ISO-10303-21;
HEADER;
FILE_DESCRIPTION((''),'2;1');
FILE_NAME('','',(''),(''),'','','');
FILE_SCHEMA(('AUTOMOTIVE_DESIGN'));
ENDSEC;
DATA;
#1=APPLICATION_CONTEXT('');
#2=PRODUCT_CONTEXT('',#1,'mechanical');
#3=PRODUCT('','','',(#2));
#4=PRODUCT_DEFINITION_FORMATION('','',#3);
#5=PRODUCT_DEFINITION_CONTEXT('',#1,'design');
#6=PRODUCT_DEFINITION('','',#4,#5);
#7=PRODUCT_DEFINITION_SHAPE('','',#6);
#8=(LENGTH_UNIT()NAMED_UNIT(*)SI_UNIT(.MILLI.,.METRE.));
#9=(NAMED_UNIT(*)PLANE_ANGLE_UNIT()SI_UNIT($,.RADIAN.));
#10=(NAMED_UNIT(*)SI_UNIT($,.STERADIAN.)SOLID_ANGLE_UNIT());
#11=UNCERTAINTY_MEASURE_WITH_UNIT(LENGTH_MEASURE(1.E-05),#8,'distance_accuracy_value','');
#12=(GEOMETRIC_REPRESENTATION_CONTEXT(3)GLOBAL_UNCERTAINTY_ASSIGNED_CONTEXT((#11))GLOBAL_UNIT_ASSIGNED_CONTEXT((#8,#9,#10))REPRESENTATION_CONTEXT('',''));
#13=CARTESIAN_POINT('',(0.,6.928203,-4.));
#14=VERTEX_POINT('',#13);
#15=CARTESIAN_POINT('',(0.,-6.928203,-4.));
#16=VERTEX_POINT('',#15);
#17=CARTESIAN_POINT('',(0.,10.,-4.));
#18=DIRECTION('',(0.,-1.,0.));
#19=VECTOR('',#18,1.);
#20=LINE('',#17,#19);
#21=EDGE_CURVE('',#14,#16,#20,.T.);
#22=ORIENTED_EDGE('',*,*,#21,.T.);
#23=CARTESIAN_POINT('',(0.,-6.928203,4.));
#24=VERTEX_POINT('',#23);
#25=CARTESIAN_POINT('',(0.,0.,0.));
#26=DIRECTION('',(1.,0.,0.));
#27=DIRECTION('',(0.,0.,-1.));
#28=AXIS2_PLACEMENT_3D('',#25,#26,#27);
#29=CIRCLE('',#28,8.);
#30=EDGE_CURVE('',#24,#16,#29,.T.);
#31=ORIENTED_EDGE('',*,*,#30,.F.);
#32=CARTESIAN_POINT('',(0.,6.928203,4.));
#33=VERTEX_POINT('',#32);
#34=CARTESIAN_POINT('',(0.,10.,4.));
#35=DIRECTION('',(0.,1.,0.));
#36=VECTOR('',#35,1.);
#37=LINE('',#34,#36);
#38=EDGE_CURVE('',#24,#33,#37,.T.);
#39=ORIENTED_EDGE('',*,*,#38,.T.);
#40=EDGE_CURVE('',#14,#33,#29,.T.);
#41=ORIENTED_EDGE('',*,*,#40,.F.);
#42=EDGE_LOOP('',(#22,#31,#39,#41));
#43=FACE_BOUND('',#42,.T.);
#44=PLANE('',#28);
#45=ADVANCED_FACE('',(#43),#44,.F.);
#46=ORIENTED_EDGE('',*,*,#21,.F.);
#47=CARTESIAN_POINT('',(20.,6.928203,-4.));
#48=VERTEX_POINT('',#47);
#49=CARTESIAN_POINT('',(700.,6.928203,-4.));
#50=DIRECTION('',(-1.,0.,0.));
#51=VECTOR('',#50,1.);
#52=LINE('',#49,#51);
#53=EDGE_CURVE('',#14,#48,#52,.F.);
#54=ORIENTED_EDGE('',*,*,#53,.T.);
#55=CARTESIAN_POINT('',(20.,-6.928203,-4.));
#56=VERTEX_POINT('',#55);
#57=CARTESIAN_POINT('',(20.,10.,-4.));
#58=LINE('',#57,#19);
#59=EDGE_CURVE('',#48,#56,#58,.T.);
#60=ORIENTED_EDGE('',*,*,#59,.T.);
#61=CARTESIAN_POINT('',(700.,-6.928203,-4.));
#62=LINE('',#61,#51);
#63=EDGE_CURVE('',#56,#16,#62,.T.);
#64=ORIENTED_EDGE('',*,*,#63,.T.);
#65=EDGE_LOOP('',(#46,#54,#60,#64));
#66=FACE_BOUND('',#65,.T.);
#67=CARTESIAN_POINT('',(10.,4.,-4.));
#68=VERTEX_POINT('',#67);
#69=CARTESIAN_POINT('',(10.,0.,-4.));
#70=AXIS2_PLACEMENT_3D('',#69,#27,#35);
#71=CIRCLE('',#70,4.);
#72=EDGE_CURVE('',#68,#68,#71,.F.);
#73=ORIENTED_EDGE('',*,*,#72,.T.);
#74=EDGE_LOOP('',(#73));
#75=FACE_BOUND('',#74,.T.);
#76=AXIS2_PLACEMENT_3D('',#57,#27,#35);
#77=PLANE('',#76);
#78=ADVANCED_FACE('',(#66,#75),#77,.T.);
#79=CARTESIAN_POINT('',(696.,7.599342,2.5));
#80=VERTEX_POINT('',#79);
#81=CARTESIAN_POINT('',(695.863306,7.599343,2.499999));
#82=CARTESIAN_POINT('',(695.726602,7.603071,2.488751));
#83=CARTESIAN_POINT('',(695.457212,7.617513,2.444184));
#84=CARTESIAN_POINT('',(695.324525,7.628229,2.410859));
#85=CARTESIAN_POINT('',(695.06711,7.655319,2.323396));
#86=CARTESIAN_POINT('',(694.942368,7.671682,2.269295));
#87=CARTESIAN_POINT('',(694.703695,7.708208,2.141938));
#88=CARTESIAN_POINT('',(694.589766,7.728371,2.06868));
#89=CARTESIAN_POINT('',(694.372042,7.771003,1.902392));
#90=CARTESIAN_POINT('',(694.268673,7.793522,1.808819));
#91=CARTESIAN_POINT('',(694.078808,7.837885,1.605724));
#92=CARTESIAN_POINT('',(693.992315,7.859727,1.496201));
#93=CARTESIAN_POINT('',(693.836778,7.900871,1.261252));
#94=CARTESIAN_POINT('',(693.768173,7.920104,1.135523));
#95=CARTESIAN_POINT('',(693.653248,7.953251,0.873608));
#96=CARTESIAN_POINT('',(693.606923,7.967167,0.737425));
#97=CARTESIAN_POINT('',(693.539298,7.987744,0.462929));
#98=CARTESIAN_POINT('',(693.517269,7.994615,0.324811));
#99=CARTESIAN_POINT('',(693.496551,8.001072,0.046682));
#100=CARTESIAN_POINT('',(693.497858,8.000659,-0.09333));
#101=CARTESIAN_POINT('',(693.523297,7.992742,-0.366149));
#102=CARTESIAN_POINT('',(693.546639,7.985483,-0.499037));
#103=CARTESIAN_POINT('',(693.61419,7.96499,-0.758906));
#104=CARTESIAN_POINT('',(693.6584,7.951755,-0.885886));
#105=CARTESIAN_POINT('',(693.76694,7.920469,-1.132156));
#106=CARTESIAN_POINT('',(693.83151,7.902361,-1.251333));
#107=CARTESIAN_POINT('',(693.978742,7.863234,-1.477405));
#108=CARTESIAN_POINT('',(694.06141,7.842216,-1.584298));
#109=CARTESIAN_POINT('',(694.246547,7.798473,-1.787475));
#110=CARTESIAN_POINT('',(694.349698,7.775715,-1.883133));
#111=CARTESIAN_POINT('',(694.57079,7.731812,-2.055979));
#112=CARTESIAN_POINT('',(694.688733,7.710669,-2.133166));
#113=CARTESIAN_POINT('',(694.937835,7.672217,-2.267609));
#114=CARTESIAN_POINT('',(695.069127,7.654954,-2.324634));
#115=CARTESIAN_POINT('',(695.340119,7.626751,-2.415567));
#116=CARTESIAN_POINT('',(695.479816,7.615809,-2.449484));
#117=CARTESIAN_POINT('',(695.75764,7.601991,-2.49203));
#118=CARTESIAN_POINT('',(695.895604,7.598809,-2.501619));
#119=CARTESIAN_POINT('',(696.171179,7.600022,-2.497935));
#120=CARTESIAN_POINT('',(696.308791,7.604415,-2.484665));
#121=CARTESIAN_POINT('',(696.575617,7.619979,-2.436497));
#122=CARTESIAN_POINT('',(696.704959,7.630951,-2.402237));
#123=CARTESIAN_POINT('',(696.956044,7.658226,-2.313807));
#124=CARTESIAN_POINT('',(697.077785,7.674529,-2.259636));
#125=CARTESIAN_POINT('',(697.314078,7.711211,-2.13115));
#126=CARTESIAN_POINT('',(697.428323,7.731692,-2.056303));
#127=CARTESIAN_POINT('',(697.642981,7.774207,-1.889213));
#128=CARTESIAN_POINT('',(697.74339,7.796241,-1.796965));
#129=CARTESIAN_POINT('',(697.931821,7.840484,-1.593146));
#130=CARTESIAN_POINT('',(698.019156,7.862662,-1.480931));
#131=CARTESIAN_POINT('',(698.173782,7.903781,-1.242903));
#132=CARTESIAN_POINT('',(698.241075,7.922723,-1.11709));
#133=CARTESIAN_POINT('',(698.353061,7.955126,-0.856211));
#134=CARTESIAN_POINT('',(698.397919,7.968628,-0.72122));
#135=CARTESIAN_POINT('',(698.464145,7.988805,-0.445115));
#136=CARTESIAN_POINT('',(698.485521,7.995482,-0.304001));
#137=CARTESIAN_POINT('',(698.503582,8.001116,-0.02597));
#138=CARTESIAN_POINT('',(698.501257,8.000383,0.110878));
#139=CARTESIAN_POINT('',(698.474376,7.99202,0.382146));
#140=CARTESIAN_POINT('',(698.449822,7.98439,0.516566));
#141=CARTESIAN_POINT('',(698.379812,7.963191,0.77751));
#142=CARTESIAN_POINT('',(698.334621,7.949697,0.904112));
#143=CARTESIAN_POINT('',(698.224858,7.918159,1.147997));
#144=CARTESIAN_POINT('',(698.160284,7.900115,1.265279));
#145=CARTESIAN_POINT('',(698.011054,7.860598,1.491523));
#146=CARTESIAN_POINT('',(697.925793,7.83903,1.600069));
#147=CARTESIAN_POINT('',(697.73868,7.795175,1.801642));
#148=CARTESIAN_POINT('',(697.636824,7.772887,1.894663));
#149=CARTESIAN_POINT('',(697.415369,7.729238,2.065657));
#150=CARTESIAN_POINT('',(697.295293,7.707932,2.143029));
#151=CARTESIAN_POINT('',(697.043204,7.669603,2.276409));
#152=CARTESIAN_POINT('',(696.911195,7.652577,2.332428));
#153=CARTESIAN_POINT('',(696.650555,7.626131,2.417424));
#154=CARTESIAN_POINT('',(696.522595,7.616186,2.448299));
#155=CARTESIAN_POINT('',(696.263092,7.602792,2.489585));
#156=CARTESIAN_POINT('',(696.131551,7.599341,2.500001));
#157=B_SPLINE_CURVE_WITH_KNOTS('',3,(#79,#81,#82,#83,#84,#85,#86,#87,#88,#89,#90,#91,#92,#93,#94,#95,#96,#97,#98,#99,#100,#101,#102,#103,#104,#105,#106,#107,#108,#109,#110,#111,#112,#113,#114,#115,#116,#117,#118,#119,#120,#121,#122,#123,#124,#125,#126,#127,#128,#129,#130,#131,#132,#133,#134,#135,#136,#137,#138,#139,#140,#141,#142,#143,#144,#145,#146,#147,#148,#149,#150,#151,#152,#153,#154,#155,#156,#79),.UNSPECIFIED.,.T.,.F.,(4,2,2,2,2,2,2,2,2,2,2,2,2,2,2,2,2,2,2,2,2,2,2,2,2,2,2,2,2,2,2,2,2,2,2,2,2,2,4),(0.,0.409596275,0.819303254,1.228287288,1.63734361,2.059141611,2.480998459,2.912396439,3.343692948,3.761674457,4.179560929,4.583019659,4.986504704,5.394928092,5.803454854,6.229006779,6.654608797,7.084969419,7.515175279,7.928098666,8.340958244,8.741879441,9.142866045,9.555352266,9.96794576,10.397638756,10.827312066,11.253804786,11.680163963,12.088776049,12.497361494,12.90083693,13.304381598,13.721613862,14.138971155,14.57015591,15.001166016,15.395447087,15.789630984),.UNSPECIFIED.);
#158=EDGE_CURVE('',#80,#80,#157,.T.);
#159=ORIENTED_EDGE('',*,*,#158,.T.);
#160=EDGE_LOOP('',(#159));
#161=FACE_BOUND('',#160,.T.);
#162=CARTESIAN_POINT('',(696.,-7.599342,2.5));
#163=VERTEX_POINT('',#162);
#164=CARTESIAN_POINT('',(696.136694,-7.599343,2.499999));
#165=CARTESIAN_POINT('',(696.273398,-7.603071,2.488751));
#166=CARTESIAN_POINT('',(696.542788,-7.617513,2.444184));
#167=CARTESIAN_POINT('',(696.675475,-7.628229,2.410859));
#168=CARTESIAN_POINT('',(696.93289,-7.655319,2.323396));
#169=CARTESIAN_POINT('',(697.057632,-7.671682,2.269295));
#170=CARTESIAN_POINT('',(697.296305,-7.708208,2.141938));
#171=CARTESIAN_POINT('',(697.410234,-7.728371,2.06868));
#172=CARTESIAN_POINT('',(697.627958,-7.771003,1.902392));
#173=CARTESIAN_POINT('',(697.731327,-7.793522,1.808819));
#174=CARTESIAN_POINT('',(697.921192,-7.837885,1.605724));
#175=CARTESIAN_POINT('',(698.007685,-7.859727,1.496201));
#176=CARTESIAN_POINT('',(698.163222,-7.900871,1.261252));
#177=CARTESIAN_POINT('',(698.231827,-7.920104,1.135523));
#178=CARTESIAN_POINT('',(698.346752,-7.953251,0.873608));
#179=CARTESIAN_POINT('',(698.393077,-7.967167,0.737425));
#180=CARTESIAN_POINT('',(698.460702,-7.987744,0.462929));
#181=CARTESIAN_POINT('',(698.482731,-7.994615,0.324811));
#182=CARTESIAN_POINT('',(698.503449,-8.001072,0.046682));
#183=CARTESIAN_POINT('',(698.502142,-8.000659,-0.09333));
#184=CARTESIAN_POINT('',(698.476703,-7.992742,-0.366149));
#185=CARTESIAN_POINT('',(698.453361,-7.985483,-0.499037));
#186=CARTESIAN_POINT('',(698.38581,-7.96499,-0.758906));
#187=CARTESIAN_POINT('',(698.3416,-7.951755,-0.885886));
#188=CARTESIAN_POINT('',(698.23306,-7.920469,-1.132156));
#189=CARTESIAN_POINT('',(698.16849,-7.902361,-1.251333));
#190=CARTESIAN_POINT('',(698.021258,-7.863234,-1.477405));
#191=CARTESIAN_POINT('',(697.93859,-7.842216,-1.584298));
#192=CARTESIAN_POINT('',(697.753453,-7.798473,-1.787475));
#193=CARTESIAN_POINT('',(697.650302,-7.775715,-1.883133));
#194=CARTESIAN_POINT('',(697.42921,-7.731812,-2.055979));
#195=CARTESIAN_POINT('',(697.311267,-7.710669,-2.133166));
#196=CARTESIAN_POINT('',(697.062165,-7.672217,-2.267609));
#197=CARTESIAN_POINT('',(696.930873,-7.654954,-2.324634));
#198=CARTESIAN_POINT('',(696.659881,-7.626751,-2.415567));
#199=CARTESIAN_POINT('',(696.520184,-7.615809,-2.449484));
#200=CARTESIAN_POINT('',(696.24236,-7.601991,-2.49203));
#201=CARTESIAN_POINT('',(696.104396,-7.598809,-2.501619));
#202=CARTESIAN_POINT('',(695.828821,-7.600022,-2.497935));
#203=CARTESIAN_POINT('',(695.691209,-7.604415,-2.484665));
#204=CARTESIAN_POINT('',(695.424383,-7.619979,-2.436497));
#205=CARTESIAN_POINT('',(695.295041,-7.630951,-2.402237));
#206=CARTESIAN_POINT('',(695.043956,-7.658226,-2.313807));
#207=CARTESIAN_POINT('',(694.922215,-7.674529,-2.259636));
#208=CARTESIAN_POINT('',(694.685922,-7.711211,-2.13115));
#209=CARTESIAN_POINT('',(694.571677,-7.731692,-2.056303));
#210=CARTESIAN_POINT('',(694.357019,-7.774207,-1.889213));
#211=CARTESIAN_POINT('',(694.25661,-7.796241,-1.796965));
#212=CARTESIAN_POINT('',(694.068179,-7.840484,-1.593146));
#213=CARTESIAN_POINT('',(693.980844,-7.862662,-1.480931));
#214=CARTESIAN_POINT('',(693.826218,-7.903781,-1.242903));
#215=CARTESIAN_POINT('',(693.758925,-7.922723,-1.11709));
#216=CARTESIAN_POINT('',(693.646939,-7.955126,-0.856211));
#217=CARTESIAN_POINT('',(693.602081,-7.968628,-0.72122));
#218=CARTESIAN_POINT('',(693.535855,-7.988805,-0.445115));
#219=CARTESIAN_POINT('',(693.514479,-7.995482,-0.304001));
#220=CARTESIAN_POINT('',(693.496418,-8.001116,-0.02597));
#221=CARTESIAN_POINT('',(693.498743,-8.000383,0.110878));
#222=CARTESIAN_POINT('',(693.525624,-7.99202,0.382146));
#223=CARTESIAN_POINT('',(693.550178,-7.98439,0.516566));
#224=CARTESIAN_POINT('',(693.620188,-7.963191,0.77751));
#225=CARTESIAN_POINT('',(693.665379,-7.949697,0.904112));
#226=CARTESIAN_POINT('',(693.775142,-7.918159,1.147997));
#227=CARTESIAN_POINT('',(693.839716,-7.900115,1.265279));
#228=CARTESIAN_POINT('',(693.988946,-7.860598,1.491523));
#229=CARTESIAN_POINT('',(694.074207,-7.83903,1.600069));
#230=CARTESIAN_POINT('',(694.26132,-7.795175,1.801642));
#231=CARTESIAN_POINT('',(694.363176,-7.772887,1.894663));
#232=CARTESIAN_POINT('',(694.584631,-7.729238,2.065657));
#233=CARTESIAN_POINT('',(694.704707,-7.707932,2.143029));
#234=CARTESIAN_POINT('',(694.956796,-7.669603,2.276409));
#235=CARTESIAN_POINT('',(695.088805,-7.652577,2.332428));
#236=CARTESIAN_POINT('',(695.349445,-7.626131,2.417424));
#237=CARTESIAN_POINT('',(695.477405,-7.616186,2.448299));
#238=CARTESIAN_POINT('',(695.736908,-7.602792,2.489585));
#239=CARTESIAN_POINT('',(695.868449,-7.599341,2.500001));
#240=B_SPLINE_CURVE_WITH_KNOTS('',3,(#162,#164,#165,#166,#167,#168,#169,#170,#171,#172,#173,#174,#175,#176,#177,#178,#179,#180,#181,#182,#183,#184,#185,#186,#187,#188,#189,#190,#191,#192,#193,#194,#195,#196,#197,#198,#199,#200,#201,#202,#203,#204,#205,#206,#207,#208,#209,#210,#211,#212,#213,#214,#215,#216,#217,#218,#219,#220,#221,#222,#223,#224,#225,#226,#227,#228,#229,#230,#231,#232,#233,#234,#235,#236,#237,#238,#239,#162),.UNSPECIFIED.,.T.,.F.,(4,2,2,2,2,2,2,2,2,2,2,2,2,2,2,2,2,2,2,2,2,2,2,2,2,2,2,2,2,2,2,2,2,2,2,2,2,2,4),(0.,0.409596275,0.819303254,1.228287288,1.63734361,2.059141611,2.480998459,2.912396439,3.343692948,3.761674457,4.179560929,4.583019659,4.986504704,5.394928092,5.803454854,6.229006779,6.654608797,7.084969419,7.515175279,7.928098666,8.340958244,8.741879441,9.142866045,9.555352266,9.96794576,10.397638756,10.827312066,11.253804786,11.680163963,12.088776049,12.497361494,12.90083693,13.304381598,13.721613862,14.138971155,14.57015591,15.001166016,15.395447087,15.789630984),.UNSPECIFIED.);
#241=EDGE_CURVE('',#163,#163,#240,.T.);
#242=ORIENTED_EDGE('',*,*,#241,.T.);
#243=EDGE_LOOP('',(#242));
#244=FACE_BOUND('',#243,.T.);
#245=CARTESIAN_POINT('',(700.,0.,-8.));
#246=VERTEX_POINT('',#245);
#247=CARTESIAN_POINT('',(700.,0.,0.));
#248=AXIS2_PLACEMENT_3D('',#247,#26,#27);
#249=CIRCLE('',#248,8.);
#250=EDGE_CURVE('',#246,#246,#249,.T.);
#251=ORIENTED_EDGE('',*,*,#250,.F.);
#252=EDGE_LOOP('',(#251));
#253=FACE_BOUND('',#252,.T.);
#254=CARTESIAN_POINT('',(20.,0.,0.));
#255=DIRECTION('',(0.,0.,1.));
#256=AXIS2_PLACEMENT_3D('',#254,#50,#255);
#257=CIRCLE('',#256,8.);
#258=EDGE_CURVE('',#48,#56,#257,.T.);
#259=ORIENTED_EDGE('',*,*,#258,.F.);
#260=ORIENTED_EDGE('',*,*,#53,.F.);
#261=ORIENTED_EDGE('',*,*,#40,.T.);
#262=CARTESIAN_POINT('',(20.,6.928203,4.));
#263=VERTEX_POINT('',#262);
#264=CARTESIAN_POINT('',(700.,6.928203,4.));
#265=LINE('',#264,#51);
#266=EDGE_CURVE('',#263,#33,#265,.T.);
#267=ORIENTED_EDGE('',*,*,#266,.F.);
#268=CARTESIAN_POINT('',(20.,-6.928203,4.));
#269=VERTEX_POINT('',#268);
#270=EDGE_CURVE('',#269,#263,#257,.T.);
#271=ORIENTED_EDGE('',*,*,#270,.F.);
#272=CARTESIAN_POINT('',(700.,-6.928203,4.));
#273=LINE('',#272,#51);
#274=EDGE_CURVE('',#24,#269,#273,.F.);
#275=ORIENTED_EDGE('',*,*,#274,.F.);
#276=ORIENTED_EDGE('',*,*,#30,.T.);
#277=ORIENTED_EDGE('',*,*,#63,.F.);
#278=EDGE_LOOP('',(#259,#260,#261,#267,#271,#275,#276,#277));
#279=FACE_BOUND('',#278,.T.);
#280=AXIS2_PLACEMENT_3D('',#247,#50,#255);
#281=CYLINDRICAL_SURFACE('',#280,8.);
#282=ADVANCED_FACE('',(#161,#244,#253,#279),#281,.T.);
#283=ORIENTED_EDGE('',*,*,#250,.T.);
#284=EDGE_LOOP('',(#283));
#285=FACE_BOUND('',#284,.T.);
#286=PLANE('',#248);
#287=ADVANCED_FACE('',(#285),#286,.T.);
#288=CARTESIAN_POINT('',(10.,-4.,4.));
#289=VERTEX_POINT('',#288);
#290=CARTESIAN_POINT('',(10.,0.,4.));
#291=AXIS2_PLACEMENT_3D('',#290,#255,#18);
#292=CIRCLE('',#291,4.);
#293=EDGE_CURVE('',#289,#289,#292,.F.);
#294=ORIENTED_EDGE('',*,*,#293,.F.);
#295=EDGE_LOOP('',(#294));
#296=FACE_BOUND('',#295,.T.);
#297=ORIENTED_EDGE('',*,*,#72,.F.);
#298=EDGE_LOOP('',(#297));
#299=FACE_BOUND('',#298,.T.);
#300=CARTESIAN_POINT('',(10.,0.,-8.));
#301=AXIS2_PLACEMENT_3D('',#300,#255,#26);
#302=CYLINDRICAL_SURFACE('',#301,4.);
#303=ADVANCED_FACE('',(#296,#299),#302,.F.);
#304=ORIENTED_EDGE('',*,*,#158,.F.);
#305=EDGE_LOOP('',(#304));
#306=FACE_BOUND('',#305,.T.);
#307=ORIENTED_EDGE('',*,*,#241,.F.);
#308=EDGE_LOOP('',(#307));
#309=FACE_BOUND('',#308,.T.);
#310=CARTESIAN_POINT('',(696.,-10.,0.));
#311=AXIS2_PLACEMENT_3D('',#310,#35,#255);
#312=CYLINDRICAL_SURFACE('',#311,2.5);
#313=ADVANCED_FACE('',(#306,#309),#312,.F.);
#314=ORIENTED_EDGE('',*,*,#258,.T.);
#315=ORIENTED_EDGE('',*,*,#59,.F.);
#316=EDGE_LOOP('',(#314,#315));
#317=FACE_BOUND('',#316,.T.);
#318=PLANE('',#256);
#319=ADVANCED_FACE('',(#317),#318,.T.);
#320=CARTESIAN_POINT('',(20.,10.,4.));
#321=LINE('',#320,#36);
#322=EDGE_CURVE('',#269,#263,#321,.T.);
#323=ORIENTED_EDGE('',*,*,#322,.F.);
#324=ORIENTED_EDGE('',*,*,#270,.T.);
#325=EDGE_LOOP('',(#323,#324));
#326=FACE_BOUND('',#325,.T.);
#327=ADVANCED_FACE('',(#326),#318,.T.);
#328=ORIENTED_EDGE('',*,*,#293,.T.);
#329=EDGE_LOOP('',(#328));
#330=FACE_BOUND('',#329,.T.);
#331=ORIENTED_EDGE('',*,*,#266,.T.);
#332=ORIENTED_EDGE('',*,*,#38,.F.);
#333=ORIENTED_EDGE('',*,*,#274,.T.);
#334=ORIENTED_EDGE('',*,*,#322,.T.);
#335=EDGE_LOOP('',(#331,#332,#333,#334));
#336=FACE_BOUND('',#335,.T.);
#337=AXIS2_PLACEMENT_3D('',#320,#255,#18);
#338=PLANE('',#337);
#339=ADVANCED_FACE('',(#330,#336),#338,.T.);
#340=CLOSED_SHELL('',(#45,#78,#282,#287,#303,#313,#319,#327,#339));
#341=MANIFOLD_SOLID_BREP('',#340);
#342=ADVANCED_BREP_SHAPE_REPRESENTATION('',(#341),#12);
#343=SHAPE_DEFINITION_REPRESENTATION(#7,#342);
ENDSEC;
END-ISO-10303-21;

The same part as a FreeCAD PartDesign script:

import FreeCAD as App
import Part
import Sketcher
from FreeCAD import Vector
Q = App.Units.Quantity


def add_polygon(sketch, points):
    """Adds a closed chain of lines whose ends are joined by coincident constraints."""
    first, n = sketch.GeometryCount, len(points)
    for a, b in zip(points, points[1:] + points[:1]):
        sketch.addGeometry(Part.LineSegment(App.Vector(*a, 0), App.Vector(*b, 0)), False)
    for i in range(n):
        sketch.addConstraint(Sketcher.Constraint("Coincident", first + i, 2, first + (i + 1) % n, 1))

doc = App.newDocument("Part")
body = doc.addObject("PartDesign::Body", "Body")

# Sketch on YZ plane
sketch1 = body.newObject("Sketcher::SketchObject", "Sketch")
sketch1.AttachmentSupport = (doc.getObject("YZ_Plane"), [""])
sketch1.MapMode = "FlatFace"
sketch1.addGeometry(Part.Circle(Vector(0, 0, 0), Vector(0, 0, 1), 8), False)
sketch1.addConstraint(Sketcher.Constraint("Coincident", 0, 3, -1, 1))
sketch1.addConstraint(Sketcher.Constraint("Diameter", 0, Q("16 mm")))
pad1 = body.newObject("PartDesign::Pad", "Pad")
pad1.Profile = sketch1
pad1.Length = 700

# Sketch on XY plane
sketch2 = body.newObject("Sketcher::SketchObject", "Sketch001")
sketch2.AttachmentSupport = (doc.getObject("XY_Plane"), [""])
sketch2.MapMode = "FlatFace"
sketch2.addGeometry(Part.Circle(Vector(10, 0, 0), Vector(0, 0, 1), 4), False)
sketch2.addConstraint(Sketcher.Constraint("PointOnObject", 0, 3, -1))
sketch2.addConstraint(Sketcher.Constraint("Diameter", 0, Q("8 mm")))
sketch2.addConstraint(Sketcher.Constraint("DistanceX", -1, 1, 0, 3, Q("10 mm")))
pocket1 = body.newObject("PartDesign::Pocket", "Pocket")
pocket1.Profile = sketch2
pocket1.Type = "ThroughAll"
pocket1.Midplane = True

# Sketch on YZ plane
sketch3 = body.newObject("Sketcher::SketchObject", "Sketch002")
sketch3.AttachmentSupport = (doc.getObject("YZ_Plane"), [""])
sketch3.MapMode = "FlatFace"
add_polygon(sketch3, [(79, -79), (-79, -79), (-79, 79), (79, 79)])  # lines 0-3
add_polygon(sketch3, [(-10, 4), (-10, -4), (10, -4), (10, 4)])  # lines 4-7
sketch3.addConstraint(Sketcher.Constraint("Horizontal", 0))
sketch3.addConstraint(Sketcher.Constraint("Vertical", 1))
sketch3.addConstraint(Sketcher.Constraint("Horizontal", 2))
sketch3.addConstraint(Sketcher.Constraint("Vertical", 3))
sketch3.addConstraint(Sketcher.Constraint("Vertical", 4))
sketch3.addConstraint(Sketcher.Constraint("Horizontal", 5))
sketch3.addConstraint(Sketcher.Constraint("Vertical", 6))
sketch3.addConstraint(Sketcher.Constraint("Horizontal", 7))
sketch3.addConstraint(Sketcher.Constraint("Symmetric", 0, 2, 2, 2, -1, 1))
sketch3.addConstraint(Sketcher.Constraint("Symmetric", 4, 2, 6, 2, -1, 1))
sketch3.addConstraint(Sketcher.Constraint("Equal", 2, 1))
sketch3.addConstraint(Sketcher.Constraint("DistanceX", 5, 1, 5, 2, Q("20 mm")))
sketch3.addConstraint(Sketcher.Constraint("DistanceY", 4, 2, 4, 1, Q("8 mm")))
sketch3.addConstraint(Sketcher.Constraint("DistanceX", 0, 2, 0, 1, Q("158.074 mm")))
pocket2 = body.newObject("PartDesign::Pocket", "Pocket001")
pocket2.Profile = sketch3
pocket2.Length = 20
pocket2.Reversed = True

# Sketch on XZ plane
sketch4 = body.newObject("Sketcher::SketchObject", "Sketch003")
sketch4.AttachmentSupport = (doc.getObject("XZ_Plane"), [""])
sketch4.MapMode = "FlatFace"
sketch4.addGeometry(Part.Circle(Vector(696, 0, 0), Vector(0, 0, 1), 2.5), False)
sketch4.addConstraint(Sketcher.Constraint("PointOnObject", 0, 3, -1))
sketch4.addConstraint(Sketcher.Constraint("Diameter", 0, Q("5 mm")))
sketch4.addConstraint(Sketcher.Constraint("DistanceX", -1, 1, 0, 3, Q("696 mm")))
pocket3 = body.newObject("PartDesign::Pocket", "Pocket002")
pocket3.Profile = sketch4
pocket3.Length = 20
pocket3.Midplane = True

doc.recompute()
